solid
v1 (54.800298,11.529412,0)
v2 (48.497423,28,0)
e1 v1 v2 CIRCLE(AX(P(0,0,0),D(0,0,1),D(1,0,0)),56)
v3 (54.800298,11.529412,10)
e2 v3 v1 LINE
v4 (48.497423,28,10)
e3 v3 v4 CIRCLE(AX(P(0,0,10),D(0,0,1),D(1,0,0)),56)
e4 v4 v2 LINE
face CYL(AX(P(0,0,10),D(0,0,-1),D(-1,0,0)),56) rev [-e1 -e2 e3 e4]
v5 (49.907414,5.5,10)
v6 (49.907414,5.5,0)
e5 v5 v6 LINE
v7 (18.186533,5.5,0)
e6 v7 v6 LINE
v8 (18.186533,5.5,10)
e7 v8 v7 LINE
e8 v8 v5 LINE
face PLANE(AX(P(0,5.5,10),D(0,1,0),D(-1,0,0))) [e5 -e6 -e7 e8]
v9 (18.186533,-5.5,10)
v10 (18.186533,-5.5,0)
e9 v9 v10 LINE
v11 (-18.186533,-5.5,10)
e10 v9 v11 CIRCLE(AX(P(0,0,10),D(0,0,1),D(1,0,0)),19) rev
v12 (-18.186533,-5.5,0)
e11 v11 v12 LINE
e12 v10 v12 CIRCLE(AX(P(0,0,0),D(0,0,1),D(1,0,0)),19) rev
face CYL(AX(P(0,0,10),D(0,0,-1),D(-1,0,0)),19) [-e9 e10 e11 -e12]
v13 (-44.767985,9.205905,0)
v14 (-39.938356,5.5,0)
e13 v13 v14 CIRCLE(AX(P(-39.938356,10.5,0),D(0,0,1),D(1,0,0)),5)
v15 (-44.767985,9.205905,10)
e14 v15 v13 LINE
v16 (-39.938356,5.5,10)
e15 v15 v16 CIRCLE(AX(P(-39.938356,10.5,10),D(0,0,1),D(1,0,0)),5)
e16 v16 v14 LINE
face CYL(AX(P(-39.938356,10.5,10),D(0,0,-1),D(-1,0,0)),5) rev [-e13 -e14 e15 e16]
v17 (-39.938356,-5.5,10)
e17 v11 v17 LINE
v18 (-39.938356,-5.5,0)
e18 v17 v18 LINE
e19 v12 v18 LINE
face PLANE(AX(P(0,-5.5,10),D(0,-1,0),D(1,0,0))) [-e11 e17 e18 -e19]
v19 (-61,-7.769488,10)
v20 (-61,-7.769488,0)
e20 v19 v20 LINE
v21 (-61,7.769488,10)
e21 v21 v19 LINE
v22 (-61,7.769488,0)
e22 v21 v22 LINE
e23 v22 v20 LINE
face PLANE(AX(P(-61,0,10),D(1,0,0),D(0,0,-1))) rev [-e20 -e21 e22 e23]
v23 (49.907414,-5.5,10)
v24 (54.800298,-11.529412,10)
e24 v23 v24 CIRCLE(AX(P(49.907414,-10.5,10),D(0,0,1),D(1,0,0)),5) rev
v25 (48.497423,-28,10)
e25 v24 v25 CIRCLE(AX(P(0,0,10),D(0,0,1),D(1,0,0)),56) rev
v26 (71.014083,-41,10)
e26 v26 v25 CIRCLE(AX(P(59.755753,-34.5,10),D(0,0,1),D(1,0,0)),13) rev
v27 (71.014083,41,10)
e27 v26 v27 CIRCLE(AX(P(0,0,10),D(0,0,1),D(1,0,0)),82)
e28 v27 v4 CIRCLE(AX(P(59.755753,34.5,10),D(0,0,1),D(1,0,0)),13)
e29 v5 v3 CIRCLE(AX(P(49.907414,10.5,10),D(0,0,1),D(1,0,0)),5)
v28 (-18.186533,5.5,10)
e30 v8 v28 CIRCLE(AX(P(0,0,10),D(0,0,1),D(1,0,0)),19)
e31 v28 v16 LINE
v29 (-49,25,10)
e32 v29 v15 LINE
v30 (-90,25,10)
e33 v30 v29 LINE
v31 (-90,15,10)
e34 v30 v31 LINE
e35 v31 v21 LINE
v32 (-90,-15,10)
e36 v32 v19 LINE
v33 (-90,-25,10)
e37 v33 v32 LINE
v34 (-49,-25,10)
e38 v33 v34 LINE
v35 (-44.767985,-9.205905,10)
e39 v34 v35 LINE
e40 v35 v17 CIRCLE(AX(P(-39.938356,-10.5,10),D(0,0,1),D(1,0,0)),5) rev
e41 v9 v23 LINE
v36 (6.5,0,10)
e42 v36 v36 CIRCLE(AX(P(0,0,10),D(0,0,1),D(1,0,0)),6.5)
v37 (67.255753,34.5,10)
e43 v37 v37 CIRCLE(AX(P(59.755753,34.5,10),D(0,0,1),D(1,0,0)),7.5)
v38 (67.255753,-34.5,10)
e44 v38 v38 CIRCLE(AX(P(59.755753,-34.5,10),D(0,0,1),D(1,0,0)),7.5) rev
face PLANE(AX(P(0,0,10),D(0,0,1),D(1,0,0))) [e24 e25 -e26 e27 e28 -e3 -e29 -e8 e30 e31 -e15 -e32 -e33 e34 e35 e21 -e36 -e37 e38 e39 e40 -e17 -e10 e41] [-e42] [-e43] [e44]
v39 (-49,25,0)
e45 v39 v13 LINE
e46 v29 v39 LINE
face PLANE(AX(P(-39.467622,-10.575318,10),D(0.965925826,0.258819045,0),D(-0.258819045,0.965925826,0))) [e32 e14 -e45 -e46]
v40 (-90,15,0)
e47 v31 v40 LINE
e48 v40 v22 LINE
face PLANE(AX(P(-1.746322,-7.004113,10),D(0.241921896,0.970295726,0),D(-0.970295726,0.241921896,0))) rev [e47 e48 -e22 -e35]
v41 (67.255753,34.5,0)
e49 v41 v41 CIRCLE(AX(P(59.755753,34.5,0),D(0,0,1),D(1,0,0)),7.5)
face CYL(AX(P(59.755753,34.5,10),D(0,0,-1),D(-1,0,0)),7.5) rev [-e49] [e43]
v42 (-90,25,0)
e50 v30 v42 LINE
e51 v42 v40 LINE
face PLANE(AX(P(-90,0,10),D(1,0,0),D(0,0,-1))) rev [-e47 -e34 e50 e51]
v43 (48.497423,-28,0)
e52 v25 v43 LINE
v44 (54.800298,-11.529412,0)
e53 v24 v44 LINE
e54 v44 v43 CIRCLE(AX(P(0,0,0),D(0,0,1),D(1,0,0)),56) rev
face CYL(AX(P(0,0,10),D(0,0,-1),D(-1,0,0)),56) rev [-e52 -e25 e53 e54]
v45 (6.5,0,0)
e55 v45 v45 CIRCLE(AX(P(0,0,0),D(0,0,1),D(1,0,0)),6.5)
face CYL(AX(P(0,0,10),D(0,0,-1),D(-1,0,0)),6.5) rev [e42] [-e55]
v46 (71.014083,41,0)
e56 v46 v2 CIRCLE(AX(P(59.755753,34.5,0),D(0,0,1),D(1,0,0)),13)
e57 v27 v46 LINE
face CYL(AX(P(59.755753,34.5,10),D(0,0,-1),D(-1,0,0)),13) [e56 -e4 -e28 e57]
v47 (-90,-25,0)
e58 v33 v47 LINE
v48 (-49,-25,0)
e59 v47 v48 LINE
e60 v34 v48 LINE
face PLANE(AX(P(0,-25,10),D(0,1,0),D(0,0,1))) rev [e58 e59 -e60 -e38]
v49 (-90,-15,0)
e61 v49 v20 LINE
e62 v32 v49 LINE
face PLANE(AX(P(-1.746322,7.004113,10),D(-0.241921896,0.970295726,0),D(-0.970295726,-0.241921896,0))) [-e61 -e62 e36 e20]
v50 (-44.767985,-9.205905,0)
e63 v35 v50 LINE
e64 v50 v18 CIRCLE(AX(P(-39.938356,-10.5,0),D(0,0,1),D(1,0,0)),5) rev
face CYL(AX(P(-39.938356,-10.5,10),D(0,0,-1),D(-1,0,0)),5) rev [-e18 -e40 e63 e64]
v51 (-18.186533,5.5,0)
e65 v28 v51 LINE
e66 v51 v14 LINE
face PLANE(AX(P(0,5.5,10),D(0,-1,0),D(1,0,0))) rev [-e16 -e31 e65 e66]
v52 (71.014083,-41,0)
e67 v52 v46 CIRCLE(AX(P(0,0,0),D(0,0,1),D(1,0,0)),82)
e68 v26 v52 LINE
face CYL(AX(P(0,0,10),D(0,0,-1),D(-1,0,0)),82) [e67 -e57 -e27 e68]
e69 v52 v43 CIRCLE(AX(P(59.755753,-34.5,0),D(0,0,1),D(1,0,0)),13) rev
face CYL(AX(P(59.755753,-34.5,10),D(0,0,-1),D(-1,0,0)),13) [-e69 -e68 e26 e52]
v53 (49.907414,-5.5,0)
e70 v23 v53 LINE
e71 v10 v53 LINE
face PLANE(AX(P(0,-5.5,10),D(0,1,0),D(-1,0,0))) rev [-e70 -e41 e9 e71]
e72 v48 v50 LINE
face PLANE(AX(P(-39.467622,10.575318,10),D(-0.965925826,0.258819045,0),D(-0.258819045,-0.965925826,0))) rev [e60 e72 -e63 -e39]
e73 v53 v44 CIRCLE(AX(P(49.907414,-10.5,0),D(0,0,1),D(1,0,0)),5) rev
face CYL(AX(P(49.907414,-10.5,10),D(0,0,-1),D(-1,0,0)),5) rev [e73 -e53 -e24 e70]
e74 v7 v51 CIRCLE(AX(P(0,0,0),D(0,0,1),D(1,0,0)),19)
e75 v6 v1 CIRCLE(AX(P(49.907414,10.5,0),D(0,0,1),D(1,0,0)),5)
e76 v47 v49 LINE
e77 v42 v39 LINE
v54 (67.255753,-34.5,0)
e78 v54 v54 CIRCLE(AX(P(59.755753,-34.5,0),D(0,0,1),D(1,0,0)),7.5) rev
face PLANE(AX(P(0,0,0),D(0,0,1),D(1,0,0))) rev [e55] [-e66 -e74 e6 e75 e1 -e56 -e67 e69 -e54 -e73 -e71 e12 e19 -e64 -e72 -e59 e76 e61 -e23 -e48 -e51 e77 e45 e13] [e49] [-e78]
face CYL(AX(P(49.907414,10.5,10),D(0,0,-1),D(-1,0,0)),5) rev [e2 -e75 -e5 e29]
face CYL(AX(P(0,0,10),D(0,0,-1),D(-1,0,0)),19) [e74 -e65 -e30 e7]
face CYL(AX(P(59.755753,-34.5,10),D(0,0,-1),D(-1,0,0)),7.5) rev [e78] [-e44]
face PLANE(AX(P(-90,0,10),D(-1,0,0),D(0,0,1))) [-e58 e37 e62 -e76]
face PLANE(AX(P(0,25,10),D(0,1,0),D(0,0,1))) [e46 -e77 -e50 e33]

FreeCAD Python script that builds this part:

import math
import FreeCAD as App
import Part
import Sketcher

V = App.Vector
Q = App.Units.Quantity

doc = App.newDocument("Part")
body = doc.addObject("PartDesign::Body", "Body")

# Sketch on XY plane
sketch1 = body.newObject("Sketcher::SketchObject", "Sketch")
sketch1.AttachmentSupport = (doc.getObject("XY_Plane"), [""])
sketch1.MapMode = "FlatFace"
sketch1.addGeometry([
    Part.LineSegment(V(-90, 25, 0), V(-90, 15, 0)),  # 0
    Part.LineSegment(V(-90, 15, 0), V(-61, 7.769488, 0)),  # 1
    Part.LineSegment(V(-61, 7.769488, 0), V(-61, -7.769488, 0)),  # 2
    Part.LineSegment(V(-61, -7.769488, 0), V(-90, -15, 0)),  # 3
    Part.LineSegment(V(-90, -15, 0), V(-90, -25, 0)),  # 4
    Part.LineSegment(V(-90, -25, 0), V(-49, -25, 0)),  # 5
    Part.LineSegment(V(-49, -25, 0), V(-44.767985, -9.205905, 0)),  # 6
    Part.ArcOfCircle(Part.Circle(V(-39.938356, -10.5, 0), V(0, 0, 1), 5), math.radians(90), math.radians(165)),  # 7
    Part.LineSegment(V(-39.938356, -5.5, 0), V(-18.186533, -5.5, 0)),  # 8
    Part.ArcOfCircle(Part.Circle(V(0, 0, 0), V(0, 0, 1), 19), math.radians(-163.173551), math.radians(-16.826449)),  # 9
    Part.LineSegment(V(18.186533, -5.5, 0), V(49.907414, -5.5, 0)),  # 10
    Part.ArcOfCircle(Part.Circle(V(49.907414, -10.5, 0), V(0, 0, 1), 5), math.radians(-11.881156), math.radians(90)),  # 11
    Part.ArcOfCircle(Part.Circle(V(0, 0, 0), V(0, 0, 1), 56), math.radians(-30), math.radians(-11.881156)),  # 12
    Part.ArcOfCircle(Part.Circle(V(59.755753, -34.5, 0), V(0, 0, 1), 13), math.radians(150), math.radians(330)),  # 13
    Part.ArcOfCircle(Part.Circle(V(0, 0, 0), V(0, 0, 1), 82), math.radians(-30), math.radians(30)),  # 14
    Part.ArcOfCircle(Part.Circle(V(59.755753, 34.5, 0), V(0, 0, 1), 13), math.radians(30), math.radians(210)),  # 15
    Part.ArcOfCircle(Part.Circle(V(0, 0, 0), V(0, 0, 1), 56), math.radians(11.881156), math.radians(30)),  # 16
    Part.ArcOfCircle(Part.Circle(V(49.907414, 10.5, 0), V(0, 0, 1), 5), math.radians(-90), math.radians(11.881156)),  # 17
    Part.LineSegment(V(49.907414, 5.5, 0), V(18.186533, 5.5, 0)),  # 18
    Part.ArcOfCircle(Part.Circle(V(0, 0, 0), V(0, 0, 1), 19), math.radians(16.826449), math.radians(163.173551)),  # 19
    Part.LineSegment(V(-18.186533, 5.5, 0), V(-39.938356, 5.5, 0)),  # 20
    Part.ArcOfCircle(Part.Circle(V(-39.938356, 10.5, 0), V(0, 0, 1), 5), math.radians(-165), math.radians(-90)),  # 21
    Part.LineSegment(V(-44.767985, 9.205905, 0), V(-49, 25, 0)),  # 22
    Part.LineSegment(V(-49, 25, 0), V(-90, 25, 0)),  # 23
    Part.Circle(V(59.755753, -34.5, 0), V(0, 0, 1), 7.5),  # 24
    Part.Circle(V(0, 0, 0), V(0, 0, 1), 6.5),  # 25
    Part.Circle(V(59.755753, 34.5, 0), V(0, 0, 1), 7.5),  # 26
], False)
sketch1.addConstraint([
    Sketcher.Constraint("Coincident", 0, 2, 1, 1),
    Sketcher.Constraint("Coincident", 1, 2, 2, 1),
    Sketcher.Constraint("Coincident", 2, 2, 3, 1),
    Sketcher.Constraint("Coincident", 3, 2, 4, 1),
    Sketcher.Constraint("Coincident", 4, 2, 5, 1),
    Sketcher.Constraint("Coincident", 5, 2, 6, 1),
    Sketcher.Constraint("Tangent", 6, 2, 7, 2),
    Sketcher.Constraint("Tangent", 7, 1, 8, 1),
    Sketcher.Constraint("Coincident", 8, 2, 9, 1),
    Sketcher.Constraint("Coincident", 9, 2, 10, 1),
    Sketcher.Constraint("Tangent", 10, 2, 11, 2),
    Sketcher.Constraint("Tangent", 11, 1, 12, 2),
    Sketcher.Constraint("Tangent", 12, 1, 13, 1),
    Sketcher.Constraint("Tangent", 13, 2, 14, 1),
    Sketcher.Constraint("Tangent", 14, 2, 15, 1),
    Sketcher.Constraint("Tangent", 15, 2, 16, 2),
    Sketcher.Constraint("Tangent", 16, 1, 17, 2),
    Sketcher.Constraint("Tangent", 17, 1, 18, 1),
    Sketcher.Constraint("Coincident", 18, 2, 19, 1),
    Sketcher.Constraint("Coincident", 19, 2, 20, 1),
    Sketcher.Constraint("Tangent", 20, 2, 21, 2),
    Sketcher.Constraint("Tangent", 21, 1, 22, 1),
    Sketcher.Constraint("Coincident", 22, 2, 23, 1),
    Sketcher.Constraint("Coincident", 23, 2, 0, 1),
    Sketcher.Constraint("Vertical", 0),
    Sketcher.Constraint("Vertical", 2),
    Sketcher.Constraint("Vertical", 4),
    Sketcher.Constraint("Horizontal", 5),
    Sketcher.Constraint("Horizontal", 8),
    Sketcher.Constraint("Horizontal", 10),
    Sketcher.Constraint("Horizontal", 18),
    Sketcher.Constraint("Horizontal", 20),
    Sketcher.Constraint("Horizontal", 23),
    Sketcher.Constraint("Coincident", 9, 3, -1, 1),
    Sketcher.Constraint("Coincident", 12, 3, -1, 1),
    Sketcher.Constraint("Coincident", 14, 3, -1, 1),
    Sketcher.Constraint("Coincident", 16, 3, -1, 1),
    Sketcher.Constraint("Coincident", 19, 3, -1, 1),
    Sketcher.Constraint("Coincident", 25, 3, -1, 1),
    Sketcher.Constraint("Coincident", 24, 3, 13, 3),
    Sketcher.Constraint("Coincident", 26, 3, 15, 3),
    Sketcher.Constraint("Equal", 7, 11),
    Sketcher.Constraint("Equal", 13, 15),
    Sketcher.Constraint("Equal", 11, 17),
    Sketcher.Constraint("Equal", 9, 19),
    Sketcher.Constraint("Equal", 17, 21),
    Sketcher.Constraint("Equal", 24, 26),
    Sketcher.Constraint("Symmetric", 7, 3, 21, 3, -1),
    Sketcher.Constraint("Symmetric", 0, 2, 3, 2, -1),
    Sketcher.Constraint("Symmetric", 5, 2, 22, 2, -1),
    Sketcher.Constraint("Horizontal", 7, 3, 11, 3),
    Sketcher.Constraint("Horizontal", 17, 3, 21, 3),
    Sketcher.Constraint("Vertical", 13, 3, 15, 3),
    Sketcher.Constraint("Equal", 1, 3),
    Sketcher.Constraint("Diameter", 24, 15.0),
    Sketcher.Constraint("Diameter", 25, 13.0),
    Sketcher.Constraint("Radius", 7, 5.0),
    Sketcher.Constraint("Radius", 9, 19.0),
    Sketcher.Constraint("Radius", 12, 56.0),
    Sketcher.Constraint("Radius", 13, 13.0),
    Sketcher.Constraint("DistanceX", 5, 1, 5, 2, 41.0),
    Sketcher.Constraint("DistanceY", 0, 2, 0, 1, 10.0),
    Sketcher.Constraint("Angle", 1, Q("-14 deg")),
    Sketcher.Constraint("Angle", 6, Q("75 deg")),
    Sketcher.Constraint("DistanceX", 0, 2, -1, 1, 90.0),
    Sketcher.Constraint("DistanceY", -1, 1, 0, 2, 15.0),
    Sketcher.Constraint("DistanceX", 1, 2, -1, 1, 61.0),
    Sketcher.Constraint("DistanceY", 12, 1, -1, 1, 28.0),
    Sketcher.Constraint("DistanceY", 13, 3, 11, 3, 24.0),
])
pad1 = body.newObject("PartDesign::Pad", "Pad")
pad1.Profile = sketch1
pad1.Length = 10

doc.recompute()
